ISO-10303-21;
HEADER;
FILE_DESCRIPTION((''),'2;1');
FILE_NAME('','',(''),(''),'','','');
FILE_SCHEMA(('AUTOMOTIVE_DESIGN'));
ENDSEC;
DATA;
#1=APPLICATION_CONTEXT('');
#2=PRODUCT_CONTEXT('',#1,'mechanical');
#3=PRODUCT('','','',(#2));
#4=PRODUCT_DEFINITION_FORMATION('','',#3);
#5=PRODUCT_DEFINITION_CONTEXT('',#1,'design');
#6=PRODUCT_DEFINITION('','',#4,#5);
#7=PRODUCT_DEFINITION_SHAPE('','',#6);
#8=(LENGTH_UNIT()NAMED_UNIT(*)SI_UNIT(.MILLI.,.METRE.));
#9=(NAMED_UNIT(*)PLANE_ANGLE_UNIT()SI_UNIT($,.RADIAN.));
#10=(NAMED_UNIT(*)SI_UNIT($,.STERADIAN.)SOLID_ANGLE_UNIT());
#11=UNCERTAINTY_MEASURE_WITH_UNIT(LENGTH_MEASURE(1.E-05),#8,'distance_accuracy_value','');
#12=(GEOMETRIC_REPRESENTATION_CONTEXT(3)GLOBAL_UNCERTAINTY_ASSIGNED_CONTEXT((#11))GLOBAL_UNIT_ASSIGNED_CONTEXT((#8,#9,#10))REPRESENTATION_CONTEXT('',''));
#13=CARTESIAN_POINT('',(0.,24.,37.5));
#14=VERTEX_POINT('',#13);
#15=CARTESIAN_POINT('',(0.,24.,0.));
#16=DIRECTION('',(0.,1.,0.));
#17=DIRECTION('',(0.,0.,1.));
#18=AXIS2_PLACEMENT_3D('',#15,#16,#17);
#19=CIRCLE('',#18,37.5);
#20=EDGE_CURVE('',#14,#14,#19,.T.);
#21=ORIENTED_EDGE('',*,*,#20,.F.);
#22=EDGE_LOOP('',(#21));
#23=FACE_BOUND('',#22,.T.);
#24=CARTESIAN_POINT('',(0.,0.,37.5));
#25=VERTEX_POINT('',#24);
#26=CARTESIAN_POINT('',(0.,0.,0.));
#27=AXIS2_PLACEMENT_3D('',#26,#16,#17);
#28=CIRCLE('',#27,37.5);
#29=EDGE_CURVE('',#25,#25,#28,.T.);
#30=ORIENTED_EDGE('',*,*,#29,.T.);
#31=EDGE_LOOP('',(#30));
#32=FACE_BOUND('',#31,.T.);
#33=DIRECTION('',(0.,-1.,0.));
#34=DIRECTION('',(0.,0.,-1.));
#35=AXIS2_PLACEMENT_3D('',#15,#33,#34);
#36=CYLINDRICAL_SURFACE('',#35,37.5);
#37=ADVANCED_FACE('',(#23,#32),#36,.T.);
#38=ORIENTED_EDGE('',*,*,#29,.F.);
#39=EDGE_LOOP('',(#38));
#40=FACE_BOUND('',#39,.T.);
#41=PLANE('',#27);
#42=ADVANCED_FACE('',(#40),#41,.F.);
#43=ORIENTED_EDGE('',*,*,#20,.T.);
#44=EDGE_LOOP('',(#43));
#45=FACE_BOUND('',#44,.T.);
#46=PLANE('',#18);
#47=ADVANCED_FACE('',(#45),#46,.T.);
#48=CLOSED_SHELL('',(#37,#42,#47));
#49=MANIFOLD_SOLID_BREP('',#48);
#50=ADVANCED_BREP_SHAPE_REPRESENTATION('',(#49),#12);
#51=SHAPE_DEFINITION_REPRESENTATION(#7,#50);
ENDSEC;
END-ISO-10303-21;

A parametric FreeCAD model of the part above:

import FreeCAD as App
import Part
import Sketcher
from FreeCAD import Vector
Q = App.Units.Quantity

doc = App.newDocument("Part")
body = doc.addObject("PartDesign::Body", "Body")

# Sketch on XZ plane
sketch1 = body.newObject("Sketcher::SketchObject", "Sketch")
sketch1.AttachmentSupport = (doc.getObject("XZ_Plane"), [""])
sketch1.MapMode = "FlatFace"
sketch1.addGeometry(Part.Circle(Vector(0, 0, 0), Vector(0, 0, 1), 38), False)
sketch1.addConstraint([
    Sketcher.Constraint("Coincident", 0, 3, -1, 1),
    Sketcher.Constraint("Diameter", 0, Q("75 mm")),
])
pad1 = body.newObject("PartDesign::Pad", "Pad")
pad1.Profile = sketch1
pad1.Length = 24
pad1.Reversed = True

doc.recompute()
